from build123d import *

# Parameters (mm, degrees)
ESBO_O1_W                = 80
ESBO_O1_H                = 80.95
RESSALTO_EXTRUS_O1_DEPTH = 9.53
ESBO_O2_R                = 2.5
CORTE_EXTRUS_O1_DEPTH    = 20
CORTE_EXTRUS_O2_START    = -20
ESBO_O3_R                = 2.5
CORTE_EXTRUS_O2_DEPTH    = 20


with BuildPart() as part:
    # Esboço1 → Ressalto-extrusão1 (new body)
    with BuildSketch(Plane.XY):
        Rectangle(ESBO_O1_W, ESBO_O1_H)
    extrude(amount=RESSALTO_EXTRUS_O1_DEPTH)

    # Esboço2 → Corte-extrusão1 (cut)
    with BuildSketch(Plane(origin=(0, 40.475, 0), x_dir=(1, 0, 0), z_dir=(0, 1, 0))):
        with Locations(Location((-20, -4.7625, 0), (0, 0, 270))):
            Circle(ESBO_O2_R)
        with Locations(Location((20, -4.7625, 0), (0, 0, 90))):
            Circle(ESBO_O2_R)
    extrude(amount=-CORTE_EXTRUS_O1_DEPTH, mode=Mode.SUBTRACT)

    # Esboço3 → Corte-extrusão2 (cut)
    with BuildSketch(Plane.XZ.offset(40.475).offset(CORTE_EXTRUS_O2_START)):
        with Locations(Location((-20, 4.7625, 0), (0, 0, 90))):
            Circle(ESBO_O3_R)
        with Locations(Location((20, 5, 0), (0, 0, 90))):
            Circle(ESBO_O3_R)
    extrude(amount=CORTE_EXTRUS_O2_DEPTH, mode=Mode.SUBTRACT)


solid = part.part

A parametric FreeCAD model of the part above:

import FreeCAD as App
import Part
import Sketcher
Q = App.Units.Quantity

doc = App.newDocument("Part")
params = doc.addObject("Spreadsheet::Sheet", "Params")
for row, (alias, value) in enumerate([
    ("sketch1_width", "80 mm"),
    ("sketch1_height", "80.95 mm"),
    ("pad1_length", "9.53 mm"),
    ("sketch2_diameter", "5 mm"),
    ("pocket1_length", "20 mm"),
    ("sketch3_diameter", "5 mm"),
    ("pocket2_length", "20 mm"),
], start=1):
    params.set(f"A{row}", alias)
    params.set(f"B{row}", "=" + value)
    params.setAlias(f"B{row}", alias)

body = doc.addObject("PartDesign::Body", "Body")

# Sketch on XY plane
sketch1 = body.newObject("Sketcher::SketchObject", "Sketch")
sketch1.AttachmentSupport = (doc.getObject("XY_Plane"), [""])
sketch1.MapMode = "FlatFace"
sketch1.addGeometry([
    Part.LineSegment(App.Vector(-40, 40, 0), App.Vector(-40, -40, 0)),
    Part.LineSegment(App.Vector(-40, -40, 0), App.Vector(40, -40, 0)),
    Part.LineSegment(App.Vector(40, -40, 0), App.Vector(40, 40, 0)),
    Part.LineSegment(App.Vector(40, 40, 0), App.Vector(-40, 40, 0)),
], False)
sketch1.addConstraint([
    Sketcher.Constraint("Coincident", 0, 2, 1, 1),
    Sketcher.Constraint("Coincident", 1, 2, 2, 1),
    Sketcher.Constraint("Coincident", 2, 2, 3, 1),
    Sketcher.Constraint("Coincident", 3, 2, 0, 1),
    Sketcher.Constraint("Vertical", 0),
    Sketcher.Constraint("Horizontal", 1),
    Sketcher.Constraint("Vertical", 2),
    Sketcher.Constraint("Horizontal", 3),
    Sketcher.Constraint("Symmetric", 0, 2, 2, 2, -1, 1),
    Sketcher.Constraint("DistanceX", 1, 1, 1, 2, Q("80 mm")),
    Sketcher.Constraint("DistanceY", 0, 2, 0, 1, Q("80.95 mm")),
])
sketch1.setExpression("Constraints[9]", "Params.sketch1_width")
sketch1.setExpression("Constraints[10]", "Params.sketch1_height")
pad1 = body.newObject("PartDesign::Pad", "Pad")
pad1.Profile = sketch1
pad1.setExpression("Length", "Params.pad1_length")

# Sketch on XZ plane
sketch2 = body.newObject("Sketcher::SketchObject", "Sketch001")
sketch2.AttachmentSupport = (doc.getObject("XZ_Plane"), [""])
sketch2.MapMode = "FlatFace"
sketch2.AttachmentOffset = App.Placement(App.Vector(0, 0, -40.475), App.Rotation())
sketch2.addGeometry([
    Part.Circle(App.Vector(-20, 4.8, 0), App.Vector(0, 0, 1), 2.5),
    Part.Circle(App.Vector(20, 4.8, 0), App.Vector(0, 0, 1), 2.5),
], False)
sketch2.addConstraint([
    Sketcher.Constraint("Equal", 0, 1),
    Sketcher.Constraint("Symmetric", 0, 3, 1, 3, -2),
    Sketcher.Constraint("Diameter", 0, Q("5 mm")),
    Sketcher.Constraint("DistanceX", 0, 3, -1, 1, Q("20 mm")),
    Sketcher.Constraint("DistanceY", -1, 1, 0, 3, Q("4.7625 mm")),
])
sketch2.setExpression("Constraints[2]", "Params.sketch2_diameter")
pocket1 = body.newObject("PartDesign::Pocket", "Pocket")
pocket1.Profile = sketch2
pocket1.setExpression("Length", "Params.pocket1_length")
pocket1.Reversed = True

# Sketch on XZ plane
sketch3 = body.newObject("Sketcher::SketchObject", "Sketch002")
sketch3.AttachmentSupport = (doc.getObject("XZ_Plane"), [""])
sketch3.MapMode = "FlatFace"
sketch3.AttachmentOffset = App.Placement(App.Vector(0, 0, 20.475), App.Rotation())
sketch3.addGeometry([
    Part.Circle(App.Vector(-20, 4.8, 0), App.Vector(0, 0, 1), 2.5),
    Part.Circle(App.Vector(20, 5, 0), App.Vector(0, 0, 1), 2.5),
], False)
sketch3.addConstraint([
    Sketcher.Constraint("Equal", 0, 1),
    Sketcher.Constraint("Diameter", 0, Q("5 mm")),
    Sketcher.Constraint("DistanceX", 0, 3, -1, 1, Q("20 mm")),
    Sketcher.Constraint("DistanceX", -1, 1, 1, 3, Q("20 mm")),
    Sketcher.Constraint("DistanceY", -1, 1, 1, 3, Q("5 mm")),
    Sketcher.Constraint("DistanceY", -1, 1, 0, 3, Q("4.7625 mm")),
])
sketch3.setExpression("Constraints[1]", "Params.sketch3_diameter")
pocket2 = body.newObject("PartDesign::Pocket", "Pocket001")
pocket2.Profile = sketch3
pocket2.setExpression("Length", "Params.pocket2_length")
pocket2.Reversed = True

doc.recompute()
